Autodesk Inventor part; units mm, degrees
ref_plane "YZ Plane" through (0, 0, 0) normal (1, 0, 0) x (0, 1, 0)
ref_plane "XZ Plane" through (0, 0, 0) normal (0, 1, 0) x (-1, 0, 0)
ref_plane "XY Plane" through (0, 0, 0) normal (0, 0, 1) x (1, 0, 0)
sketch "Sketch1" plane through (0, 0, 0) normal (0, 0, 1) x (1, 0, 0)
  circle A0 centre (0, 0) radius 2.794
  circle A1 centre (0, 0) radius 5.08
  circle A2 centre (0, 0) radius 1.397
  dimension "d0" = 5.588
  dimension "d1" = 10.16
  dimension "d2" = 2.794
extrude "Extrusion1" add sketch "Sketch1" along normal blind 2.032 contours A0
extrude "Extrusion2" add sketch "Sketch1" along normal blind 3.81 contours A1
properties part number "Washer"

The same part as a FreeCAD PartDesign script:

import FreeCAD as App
import Part
import Sketcher
from FreeCAD import Vector
Q = App.Units.Quantity

doc = App.newDocument("Part")
body = doc.addObject("PartDesign::Body", "Body")

# Sketch on XY plane
sketch1 = doc.addObject("Sketcher::SketchObject", "Sketch")
body.addObject(sketch1)
sketch1.AttachmentSupport = (doc.XY_Plane, [""])
sketch1.MapMode = "FlatFace"
sketch1.addGeometry([
    Part.Circle(Vector(0, 0, 0), Vector(0, 0, 1), 2.8),
    Part.Circle(Vector(0, 0, 0), Vector(0, 0, 1), 1.4),
], False)
sketch1.addConstraint([
    Sketcher.Constraint("Coincident", 0, 3, -1, 1),
    Sketcher.Constraint("Coincident", 1, 3, -1, 1),
    Sketcher.Constraint("Diameter", 0, Q("0.22 in")),
    Sketcher.Constraint("Diameter", 1, Q("0.11 in")),
])
pad1 = doc.addObject("PartDesign::Pad", "Pad")
body.addObject(pad1)
pad1.Profile = sketch1
pad1.Length = Q("0.08 in")

# Sketch on XY plane
sketch2 = doc.addObject("Sketcher::SketchObject", "Sketch001")
body.addObject(sketch2)
sketch2.AttachmentSupport = (doc.XY_Plane, [""])
sketch2.MapMode = "FlatFace"
sketch2.addGeometry([
    Part.Circle(Vector(0, 0, 0), Vector(0, 0, 1), 5.1),
    Part.Circle(Vector(0, 0, 0), Vector(0, 0, 1), 2.8),
], False)
sketch2.addConstraint([
    Sketcher.Constraint("Coincident", 0, 3, -1, 1),
    Sketcher.Constraint("Coincident", 1, 3, -1, 1),
    Sketcher.Constraint("Diameter", 0, Q("0.4 in")),
    Sketcher.Constraint("Diameter", 1, Q("0.22 in")),
])
pad2 = doc.addObject("PartDesign::Pad", "Pad001")
body.addObject(pad2)
pad2.Profile = sketch2
pad2.Length = Q("0.15 in")

doc.recompute()
